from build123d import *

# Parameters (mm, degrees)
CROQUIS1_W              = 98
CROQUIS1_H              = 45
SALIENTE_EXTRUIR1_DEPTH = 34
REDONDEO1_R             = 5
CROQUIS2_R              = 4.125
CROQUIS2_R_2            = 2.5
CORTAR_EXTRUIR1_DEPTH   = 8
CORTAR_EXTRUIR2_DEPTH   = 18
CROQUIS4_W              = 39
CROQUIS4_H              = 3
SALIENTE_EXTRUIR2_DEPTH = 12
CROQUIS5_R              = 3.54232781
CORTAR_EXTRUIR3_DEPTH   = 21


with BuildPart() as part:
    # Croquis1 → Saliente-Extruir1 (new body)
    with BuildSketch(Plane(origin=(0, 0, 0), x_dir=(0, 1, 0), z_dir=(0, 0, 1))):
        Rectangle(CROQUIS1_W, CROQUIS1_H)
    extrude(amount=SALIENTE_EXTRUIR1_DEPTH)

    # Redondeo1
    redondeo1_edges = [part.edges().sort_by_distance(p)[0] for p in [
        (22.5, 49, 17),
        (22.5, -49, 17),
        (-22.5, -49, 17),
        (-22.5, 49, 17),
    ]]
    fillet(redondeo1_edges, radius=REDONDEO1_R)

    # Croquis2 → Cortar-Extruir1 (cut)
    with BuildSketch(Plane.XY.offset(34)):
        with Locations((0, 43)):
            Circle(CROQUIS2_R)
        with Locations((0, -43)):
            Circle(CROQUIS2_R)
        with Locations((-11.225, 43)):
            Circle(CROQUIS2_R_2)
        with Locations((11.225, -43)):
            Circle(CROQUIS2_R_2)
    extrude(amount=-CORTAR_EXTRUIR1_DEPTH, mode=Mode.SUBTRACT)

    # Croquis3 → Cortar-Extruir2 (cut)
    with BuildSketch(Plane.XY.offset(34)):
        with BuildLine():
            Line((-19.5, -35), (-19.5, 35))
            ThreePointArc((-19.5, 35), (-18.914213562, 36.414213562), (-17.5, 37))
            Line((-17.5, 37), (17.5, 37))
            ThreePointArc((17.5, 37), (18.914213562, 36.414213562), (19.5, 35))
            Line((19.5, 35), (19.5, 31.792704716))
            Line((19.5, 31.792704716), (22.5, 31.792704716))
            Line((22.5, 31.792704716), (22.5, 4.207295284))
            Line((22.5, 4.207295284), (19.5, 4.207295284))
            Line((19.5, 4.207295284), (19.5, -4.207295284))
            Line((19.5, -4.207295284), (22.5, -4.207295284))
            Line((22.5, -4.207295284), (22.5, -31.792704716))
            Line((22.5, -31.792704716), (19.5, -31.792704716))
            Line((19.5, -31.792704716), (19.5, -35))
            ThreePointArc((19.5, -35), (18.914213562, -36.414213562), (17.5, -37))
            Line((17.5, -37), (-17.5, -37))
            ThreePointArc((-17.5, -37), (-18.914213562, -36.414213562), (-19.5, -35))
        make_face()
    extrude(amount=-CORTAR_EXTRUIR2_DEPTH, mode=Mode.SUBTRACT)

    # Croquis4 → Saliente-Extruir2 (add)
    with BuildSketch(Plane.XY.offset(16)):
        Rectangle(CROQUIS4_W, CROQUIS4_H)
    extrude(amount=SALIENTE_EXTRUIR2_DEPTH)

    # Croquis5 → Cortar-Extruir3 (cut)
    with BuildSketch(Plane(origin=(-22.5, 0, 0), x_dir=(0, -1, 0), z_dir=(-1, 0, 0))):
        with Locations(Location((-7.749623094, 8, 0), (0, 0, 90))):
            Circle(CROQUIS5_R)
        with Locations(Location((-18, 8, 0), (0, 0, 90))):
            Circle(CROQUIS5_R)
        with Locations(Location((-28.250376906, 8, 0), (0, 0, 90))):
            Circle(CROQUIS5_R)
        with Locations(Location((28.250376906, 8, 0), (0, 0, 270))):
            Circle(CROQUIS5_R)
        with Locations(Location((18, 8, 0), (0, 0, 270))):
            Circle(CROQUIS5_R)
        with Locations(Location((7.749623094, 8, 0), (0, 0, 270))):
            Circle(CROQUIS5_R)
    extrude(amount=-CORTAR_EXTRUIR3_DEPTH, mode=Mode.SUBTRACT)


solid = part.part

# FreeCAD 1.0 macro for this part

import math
import FreeCAD as App
import Part
import Sketcher
from FreeCAD import Vector
Q = App.Units.Quantity


def edges_at(feature, points):
    """Names of the edges that pass closest to the given points."""
    edges = feature.Shape.Edges
    near = lambda p: min(range(len(edges)), key=lambda i: edges[i].distToShape(Part.Vertex(*p))[0])
    return sorted({f"Edge{near(p) + 1}" for p in points})


def add_polygon(sketch, points):
    """Adds a closed chain of lines whose ends are joined by coincident constraints."""
    first, n = sketch.GeometryCount, len(points)
    for a, b in zip(points, points[1:] + points[:1]):
        sketch.addGeometry(Part.LineSegment(App.Vector(*a, 0), App.Vector(*b, 0)), False)
    for i in range(n):
        sketch.addConstraint(Sketcher.Constraint("Coincident", first + i, 2, first + (i + 1) % n, 1))

doc = App.newDocument("Part")
body = doc.addObject("PartDesign::Body", "Body")

# Sketch on XY plane
sketch1 = body.newObject("Sketcher::SketchObject", "Sketch")
sketch1.AttachmentSupport = (doc.getObject("XY_Plane"), [""])
sketch1.MapMode = "FlatFace"
add_polygon(sketch1, [(-22, -49), (22, -49), (22, 49), (-22, 49)])  # lines 0-3
sketch1.addConstraint(Sketcher.Constraint("Horizontal", 0))
sketch1.addConstraint(Sketcher.Constraint("Vertical", 1))
sketch1.addConstraint(Sketcher.Constraint("Horizontal", 2))
sketch1.addConstraint(Sketcher.Constraint("Vertical", 3))
sketch1.addConstraint(Sketcher.Constraint("Symmetric", 0, 2, 2, 2, -1, 1))
sketch1.addConstraint(Sketcher.Constraint("DistanceX", 0, 1, 0, 2, Q("45 mm")))
sketch1.addConstraint(Sketcher.Constraint("DistanceY", 1, 1, 1, 2, Q("98 mm")))
pad1 = body.newObject("PartDesign::Pad", "Pad")
pad1.Profile = sketch1
pad1.Length = 34
doc.recompute()

fillet = body.newObject("PartDesign::Fillet", "Fillet")
fillet.Base = (pad1, edges_at(pad1, [
    (22.5, 49, 17),
    (22.5, -49, 17),
    (-22.5, -49, 17),
    (-22.5, 49, 17),
]))
fillet.Radius = 5

# Sketch on XY plane
sketch2 = body.newObject("Sketcher::SketchObject", "Sketch001")
sketch2.AttachmentSupport = (doc.getObject("XY_Plane"), [""])
sketch2.MapMode = "FlatFace"
sketch2.AttachmentOffset = App.Placement(Vector(0, 0, 34), App.Rotation())
sketch2.addGeometry(Part.Circle(Vector(0, 43, 0), Vector(0, 0, 1), 4.1), False)
sketch2.addGeometry(Part.Circle(Vector(0, -43, 0), Vector(0, 0, 1), 4.1), False)
sketch2.addGeometry(Part.Circle(Vector(-11.2, 43, 0), Vector(0, 0, 1), 2.5), False)
sketch2.addGeometry(Part.Circle(Vector(11.2, -43, 0), Vector(0, 0, 1), 2.5), False)
sketch2.addConstraint(Sketcher.Constraint("Equal", 0, 1))
sketch2.addConstraint(Sketcher.Constraint("Equal", 2, 3))
sketch2.addConstraint(Sketcher.Constraint("Symmetric", 0, 3, 1, 3, -1, 1))
sketch2.addConstraint(Sketcher.Constraint("Symmetric", 2, 3, 3, 3, -1, 1))
sketch2.addConstraint(Sketcher.Constraint("PointOnObject", 0, 3, -2))
sketch2.addConstraint(Sketcher.Constraint("Horizontal", 0, 3, 2, 3))
sketch2.addConstraint(Sketcher.Constraint("Diameter", 2, Q("5 mm")))
sketch2.addConstraint(Sketcher.Constraint("Diameter", 0, Q("8.25 mm")))
sketch2.addConstraint(Sketcher.Constraint("DistanceY", -1, 1, 0, 3, Q("43 mm")))
sketch2.addConstraint(Sketcher.Constraint("DistanceX", 2, 3, 3, 3, Q("22.45 mm")))
pocket1 = body.newObject("PartDesign::Pocket", "Pocket")
pocket1.Profile = sketch2
pocket1.Length = 8

# Sketch on XY plane
sketch3 = body.newObject("Sketcher::SketchObject", "Sketch002")
sketch3.AttachmentSupport = (doc.getObject("XY_Plane"), [""])
sketch3.MapMode = "FlatFace"
sketch3.AttachmentOffset = App.Placement(Vector(0, 0, 34), App.Rotation())
sketch3.addGeometry(Part.LineSegment(Vector(-19.5, 35, 0), Vector(-19.5, -35, 0)), False)
sketch3.addGeometry(Part.ArcOfCircle(Part.Circle(Vector(-17.5, -35, 0), Vector(0, 0, 1), 2), math.radians(-180), math.radians(-90)), False)
sketch3.addGeometry(Part.LineSegment(Vector(-17.5, -37, 0), Vector(17.5, -37, 0)), False)
sketch3.addGeometry(Part.ArcOfCircle(Part.Circle(Vector(17.5, -35, 0), Vector(0, 0, 1), 2), math.radians(-90), math.radians(0)), False)
sketch3.addGeometry(Part.LineSegment(Vector(19.5, -35, 0), Vector(19.5, -31.8, 0)), False)
sketch3.addGeometry(Part.LineSegment(Vector(19.5, -31.8, 0), Vector(22.5, -31.8, 0)), False)
sketch3.addGeometry(Part.LineSegment(Vector(22.5, -31.8, 0), Vector(22.5, -4.2, 0)), False)
sketch3.addGeometry(Part.LineSegment(Vector(22.5, -4.2, 0), Vector(19.5, -4.2, 0)), False)
sketch3.addGeometry(Part.LineSegment(Vector(19.5, -4.2, 0), Vector(19.5, 4.2, 0)), False)
sketch3.addGeometry(Part.LineSegment(Vector(19.5, 4.2, 0), Vector(22.5, 4.2, 0)), False)
sketch3.addGeometry(Part.LineSegment(Vector(22.5, 4.2, 0), Vector(22.5, 31.8, 0)), False)
sketch3.addGeometry(Part.LineSegment(Vector(22.5, 31.8, 0), Vector(19.5, 31.8, 0)), False)
sketch3.addGeometry(Part.LineSegment(Vector(19.5, 31.8, 0), Vector(19.5, 35, 0)), False)
sketch3.addGeometry(Part.ArcOfCircle(Part.Circle(Vector(17.5, 35, 0), Vector(0, 0, 1), 2), math.radians(0), math.radians(90)), False)
sketch3.addGeometry(Part.LineSegment(Vector(17.5, 37, 0), Vector(-17.5, 37, 0)), False)
sketch3.addGeometry(Part.ArcOfCircle(Part.Circle(Vector(-17.5, 35, 0), Vector(0, 0, 1), 2), math.radians(90), math.radians(180)), False)
sketch3.addConstraint(Sketcher.Constraint("Tangent", 0, 2, 1, 1))
sketch3.addConstraint(Sketcher.Constraint("Tangent", 1, 2, 2, 1))
sketch3.addConstraint(Sketcher.Constraint("Tangent", 2, 2, 3, 1))
sketch3.addConstraint(Sketcher.Constraint("Tangent", 3, 2, 4, 1))
sketch3.addConstraint(Sketcher.Constraint("Coincident", 4, 2, 5, 1))
sketch3.addConstraint(Sketcher.Constraint("Coincident", 5, 2, 6, 1))
sketch3.addConstraint(Sketcher.Constraint("Coincident", 6, 2, 7, 1))
sketch3.addConstraint(Sketcher.Constraint("Coincident", 7, 2, 8, 1))
sketch3.addConstraint(Sketcher.Constraint("Coincident", 8, 2, 9, 1))
sketch3.addConstraint(Sketcher.Constraint("Coincident", 9, 2, 10, 1))
sketch3.addConstraint(Sketcher.Constraint("Coincident", 10, 2, 11, 1))
sketch3.addConstraint(Sketcher.Constraint("Coincident", 11, 2, 12, 1))
sketch3.addConstraint(Sketcher.Constraint("Tangent", 12, 2, 13, 1))
sketch3.addConstraint(Sketcher.Constraint("Tangent", 13, 2, 14, 1))
sketch3.addConstraint(Sketcher.Constraint("Tangent", 14, 2, 15, 1))
sketch3.addConstraint(Sketcher.Constraint("Tangent", 15, 2, 0, 1))
sketch3.addConstraint(Sketcher.Constraint("Vertical", 0))
sketch3.addConstraint(Sketcher.Constraint("Horizontal", 2))
sketch3.addConstraint(Sketcher.Constraint("Vertical", 4))
sketch3.addConstraint(Sketcher.Constraint("Horizontal", 5))
sketch3.addConstraint(Sketcher.Constraint("Vertical", 6))
sketch3.addConstraint(Sketcher.Constraint("Horizontal", 7))
sketch3.addConstraint(Sketcher.Constraint("Vertical", 8))
sketch3.addConstraint(Sketcher.Constraint("Horizontal", 9))
sketch3.addConstraint(Sketcher.Constraint("Vertical", 10))
sketch3.addConstraint(Sketcher.Constraint("Horizontal", 11))
sketch3.addConstraint(Sketcher.Constraint("Vertical", 12))
sketch3.addConstraint(Sketcher.Constraint("Horizontal", 14))
sketch3.addConstraint(Sketcher.Constraint("Equal", 1, 3))
sketch3.addConstraint(Sketcher.Constraint("Equal", 3, 13))
sketch3.addConstraint(Sketcher.Constraint("Equal", 13, 15))
sketch3.addConstraint(Sketcher.Constraint("Symmetric", 1, 3, 13, 3, -1, 1))
sketch3.addConstraint(Sketcher.Constraint("Symmetric", 6, 2, 9, 2, -1))
sketch3.addConstraint(Sketcher.Constraint("Symmetric", 4, 2, 11, 2, -1))
sketch3.addConstraint(Sketcher.Constraint("Vertical", 4, 2, 7, 2))
sketch3.addConstraint(Sketcher.Constraint("Radius", 1, Q("2 mm")))
sketch3.addConstraint(Sketcher.Constraint("DistanceX", 2, 1, 2, 2, Q("35 mm")))
sketch3.addConstraint(Sketcher.Constraint("DistanceX", 5, 1, 5, 2, Q("3 mm")))
sketch3.addConstraint(Sketcher.Constraint("DistanceY", 0, 2, 0, 1, Q("70 mm")))
sketch3.addConstraint(Sketcher.Constraint("DistanceY", 4, 2, 8, 2, Q("36 mm")))
sketch3.addConstraint(Sketcher.Constraint("DistanceY", 6, 1, 6, 2, Q("27.585409 mm")))
pocket2 = body.newObject("PartDesign::Pocket", "Pocket001")
pocket2.Profile = sketch3
pocket2.Length = 18

# Sketch on XY plane
sketch4 = body.newObject("Sketcher::SketchObject", "Sketch003")
sketch4.AttachmentSupport = (doc.getObject("XY_Plane"), [""])
sketch4.MapMode = "FlatFace"
sketch4.AttachmentOffset = App.Placement(Vector(0, 0, 16), App.Rotation())
add_polygon(sketch4, [(-19.5, 1.5), (-19.5, -1.5), (19.5, -1.5), (19.5, 1.5)])  # lines 0-3
sketch4.addConstraint(Sketcher.Constraint("Vertical", 0))
sketch4.addConstraint(Sketcher.Constraint("Horizontal", 1))
sketch4.addConstraint(Sketcher.Constraint("Vertical", 2))
sketch4.addConstraint(Sketcher.Constraint("Horizontal", 3))
sketch4.addConstraint(Sketcher.Constraint("Symmetric", 0, 2, 2, 2, -1, 1))
sketch4.addConstraint(Sketcher.Constraint("DistanceX", 1, 1, 1, 2, Q("39 mm")))
sketch4.addConstraint(Sketcher.Constraint("DistanceY", 0, 2, 0, 1, Q("3 mm")))
pad2 = body.newObject("PartDesign::Pad", "Pad001")
pad2.Profile = sketch4
pad2.Length = 12

# Sketch on YZ plane
sketch5 = body.newObject("Sketcher::SketchObject", "Sketch004")
sketch5.AttachmentSupport = (doc.getObject("YZ_Plane"), [""])
sketch5.MapMode = "FlatFace"
sketch5.AttachmentOffset = App.Placement(Vector(0, 0, -22.5), App.Rotation())
sketch5.addGeometry(Part.Circle(Vector(7.7, 8, 0), Vector(0, 0, 1), 3.5), False)
sketch5.addGeometry(Part.Circle(Vector(18, 8, 0), Vector(0, 0, 1), 3.5), False)
sketch5.addGeometry(Part.Circle(Vector(28.3, 8, 0), Vector(0, 0, 1), 3.5), False)
sketch5.addGeometry(Part.Circle(Vector(-28.3, 8, 0), Vector(0, 0, 1), 3.5), False)
sketch5.addGeometry(Part.Circle(Vector(-18, 8, 0), Vector(0, 0, 1), 3.5), False)
sketch5.addGeometry(Part.Circle(Vector(-7.7, 8, 0), Vector(0, 0, 1), 3.5), False)
sketch5.addConstraint(Sketcher.Constraint("Equal", 0, 1))
sketch5.addConstraint(Sketcher.Constraint("Equal", 1, 2))
sketch5.addConstraint(Sketcher.Constraint("Equal", 2, 3))
sketch5.addConstraint(Sketcher.Constraint("Equal", 3, 4))
sketch5.addConstraint(Sketcher.Constraint("Equal", 4, 5))
sketch5.addConstraint(Sketcher.Constraint("Symmetric", 2, 3, 3, 3, -2))
sketch5.addConstraint(Sketcher.Constraint("Symmetric", 1, 3, 4, 3, -2))
sketch5.addConstraint(Sketcher.Constraint("Symmetric", 0, 3, 5, 3, -2))
sketch5.addConstraint(Sketcher.Constraint("Horizontal", 0, 3, 1, 3))
sketch5.addConstraint(Sketcher.Constraint("Horizontal", 1, 3, 2, 3))
sketch5.addConstraint(Sketcher.Constraint("DistanceY", -1, 1, 0, 3, Q("8 mm")))
sketch5.addConstraint(Sketcher.Constraint("DistanceX", -1, 1, 1, 3, Q("18 mm")))
sketch5.addConstraint(Sketcher.Constraint("DistanceX", 3, 3, 0, 3, Q("36 mm")))
sketch5.addConstraint(Sketcher.Constraint("Diameter", 0, Q("7.084656 mm")))
sketch5.addConstraint(Sketcher.Constraint("DistanceX", -1, 1, 0, 3, Q("7.749623 mm")))
pocket3 = body.newObject("PartDesign::Pocket", "Pocket002")
pocket3.Profile = sketch5
pocket3.Length = 21
pocket3.Reversed = True

doc.recompute()
